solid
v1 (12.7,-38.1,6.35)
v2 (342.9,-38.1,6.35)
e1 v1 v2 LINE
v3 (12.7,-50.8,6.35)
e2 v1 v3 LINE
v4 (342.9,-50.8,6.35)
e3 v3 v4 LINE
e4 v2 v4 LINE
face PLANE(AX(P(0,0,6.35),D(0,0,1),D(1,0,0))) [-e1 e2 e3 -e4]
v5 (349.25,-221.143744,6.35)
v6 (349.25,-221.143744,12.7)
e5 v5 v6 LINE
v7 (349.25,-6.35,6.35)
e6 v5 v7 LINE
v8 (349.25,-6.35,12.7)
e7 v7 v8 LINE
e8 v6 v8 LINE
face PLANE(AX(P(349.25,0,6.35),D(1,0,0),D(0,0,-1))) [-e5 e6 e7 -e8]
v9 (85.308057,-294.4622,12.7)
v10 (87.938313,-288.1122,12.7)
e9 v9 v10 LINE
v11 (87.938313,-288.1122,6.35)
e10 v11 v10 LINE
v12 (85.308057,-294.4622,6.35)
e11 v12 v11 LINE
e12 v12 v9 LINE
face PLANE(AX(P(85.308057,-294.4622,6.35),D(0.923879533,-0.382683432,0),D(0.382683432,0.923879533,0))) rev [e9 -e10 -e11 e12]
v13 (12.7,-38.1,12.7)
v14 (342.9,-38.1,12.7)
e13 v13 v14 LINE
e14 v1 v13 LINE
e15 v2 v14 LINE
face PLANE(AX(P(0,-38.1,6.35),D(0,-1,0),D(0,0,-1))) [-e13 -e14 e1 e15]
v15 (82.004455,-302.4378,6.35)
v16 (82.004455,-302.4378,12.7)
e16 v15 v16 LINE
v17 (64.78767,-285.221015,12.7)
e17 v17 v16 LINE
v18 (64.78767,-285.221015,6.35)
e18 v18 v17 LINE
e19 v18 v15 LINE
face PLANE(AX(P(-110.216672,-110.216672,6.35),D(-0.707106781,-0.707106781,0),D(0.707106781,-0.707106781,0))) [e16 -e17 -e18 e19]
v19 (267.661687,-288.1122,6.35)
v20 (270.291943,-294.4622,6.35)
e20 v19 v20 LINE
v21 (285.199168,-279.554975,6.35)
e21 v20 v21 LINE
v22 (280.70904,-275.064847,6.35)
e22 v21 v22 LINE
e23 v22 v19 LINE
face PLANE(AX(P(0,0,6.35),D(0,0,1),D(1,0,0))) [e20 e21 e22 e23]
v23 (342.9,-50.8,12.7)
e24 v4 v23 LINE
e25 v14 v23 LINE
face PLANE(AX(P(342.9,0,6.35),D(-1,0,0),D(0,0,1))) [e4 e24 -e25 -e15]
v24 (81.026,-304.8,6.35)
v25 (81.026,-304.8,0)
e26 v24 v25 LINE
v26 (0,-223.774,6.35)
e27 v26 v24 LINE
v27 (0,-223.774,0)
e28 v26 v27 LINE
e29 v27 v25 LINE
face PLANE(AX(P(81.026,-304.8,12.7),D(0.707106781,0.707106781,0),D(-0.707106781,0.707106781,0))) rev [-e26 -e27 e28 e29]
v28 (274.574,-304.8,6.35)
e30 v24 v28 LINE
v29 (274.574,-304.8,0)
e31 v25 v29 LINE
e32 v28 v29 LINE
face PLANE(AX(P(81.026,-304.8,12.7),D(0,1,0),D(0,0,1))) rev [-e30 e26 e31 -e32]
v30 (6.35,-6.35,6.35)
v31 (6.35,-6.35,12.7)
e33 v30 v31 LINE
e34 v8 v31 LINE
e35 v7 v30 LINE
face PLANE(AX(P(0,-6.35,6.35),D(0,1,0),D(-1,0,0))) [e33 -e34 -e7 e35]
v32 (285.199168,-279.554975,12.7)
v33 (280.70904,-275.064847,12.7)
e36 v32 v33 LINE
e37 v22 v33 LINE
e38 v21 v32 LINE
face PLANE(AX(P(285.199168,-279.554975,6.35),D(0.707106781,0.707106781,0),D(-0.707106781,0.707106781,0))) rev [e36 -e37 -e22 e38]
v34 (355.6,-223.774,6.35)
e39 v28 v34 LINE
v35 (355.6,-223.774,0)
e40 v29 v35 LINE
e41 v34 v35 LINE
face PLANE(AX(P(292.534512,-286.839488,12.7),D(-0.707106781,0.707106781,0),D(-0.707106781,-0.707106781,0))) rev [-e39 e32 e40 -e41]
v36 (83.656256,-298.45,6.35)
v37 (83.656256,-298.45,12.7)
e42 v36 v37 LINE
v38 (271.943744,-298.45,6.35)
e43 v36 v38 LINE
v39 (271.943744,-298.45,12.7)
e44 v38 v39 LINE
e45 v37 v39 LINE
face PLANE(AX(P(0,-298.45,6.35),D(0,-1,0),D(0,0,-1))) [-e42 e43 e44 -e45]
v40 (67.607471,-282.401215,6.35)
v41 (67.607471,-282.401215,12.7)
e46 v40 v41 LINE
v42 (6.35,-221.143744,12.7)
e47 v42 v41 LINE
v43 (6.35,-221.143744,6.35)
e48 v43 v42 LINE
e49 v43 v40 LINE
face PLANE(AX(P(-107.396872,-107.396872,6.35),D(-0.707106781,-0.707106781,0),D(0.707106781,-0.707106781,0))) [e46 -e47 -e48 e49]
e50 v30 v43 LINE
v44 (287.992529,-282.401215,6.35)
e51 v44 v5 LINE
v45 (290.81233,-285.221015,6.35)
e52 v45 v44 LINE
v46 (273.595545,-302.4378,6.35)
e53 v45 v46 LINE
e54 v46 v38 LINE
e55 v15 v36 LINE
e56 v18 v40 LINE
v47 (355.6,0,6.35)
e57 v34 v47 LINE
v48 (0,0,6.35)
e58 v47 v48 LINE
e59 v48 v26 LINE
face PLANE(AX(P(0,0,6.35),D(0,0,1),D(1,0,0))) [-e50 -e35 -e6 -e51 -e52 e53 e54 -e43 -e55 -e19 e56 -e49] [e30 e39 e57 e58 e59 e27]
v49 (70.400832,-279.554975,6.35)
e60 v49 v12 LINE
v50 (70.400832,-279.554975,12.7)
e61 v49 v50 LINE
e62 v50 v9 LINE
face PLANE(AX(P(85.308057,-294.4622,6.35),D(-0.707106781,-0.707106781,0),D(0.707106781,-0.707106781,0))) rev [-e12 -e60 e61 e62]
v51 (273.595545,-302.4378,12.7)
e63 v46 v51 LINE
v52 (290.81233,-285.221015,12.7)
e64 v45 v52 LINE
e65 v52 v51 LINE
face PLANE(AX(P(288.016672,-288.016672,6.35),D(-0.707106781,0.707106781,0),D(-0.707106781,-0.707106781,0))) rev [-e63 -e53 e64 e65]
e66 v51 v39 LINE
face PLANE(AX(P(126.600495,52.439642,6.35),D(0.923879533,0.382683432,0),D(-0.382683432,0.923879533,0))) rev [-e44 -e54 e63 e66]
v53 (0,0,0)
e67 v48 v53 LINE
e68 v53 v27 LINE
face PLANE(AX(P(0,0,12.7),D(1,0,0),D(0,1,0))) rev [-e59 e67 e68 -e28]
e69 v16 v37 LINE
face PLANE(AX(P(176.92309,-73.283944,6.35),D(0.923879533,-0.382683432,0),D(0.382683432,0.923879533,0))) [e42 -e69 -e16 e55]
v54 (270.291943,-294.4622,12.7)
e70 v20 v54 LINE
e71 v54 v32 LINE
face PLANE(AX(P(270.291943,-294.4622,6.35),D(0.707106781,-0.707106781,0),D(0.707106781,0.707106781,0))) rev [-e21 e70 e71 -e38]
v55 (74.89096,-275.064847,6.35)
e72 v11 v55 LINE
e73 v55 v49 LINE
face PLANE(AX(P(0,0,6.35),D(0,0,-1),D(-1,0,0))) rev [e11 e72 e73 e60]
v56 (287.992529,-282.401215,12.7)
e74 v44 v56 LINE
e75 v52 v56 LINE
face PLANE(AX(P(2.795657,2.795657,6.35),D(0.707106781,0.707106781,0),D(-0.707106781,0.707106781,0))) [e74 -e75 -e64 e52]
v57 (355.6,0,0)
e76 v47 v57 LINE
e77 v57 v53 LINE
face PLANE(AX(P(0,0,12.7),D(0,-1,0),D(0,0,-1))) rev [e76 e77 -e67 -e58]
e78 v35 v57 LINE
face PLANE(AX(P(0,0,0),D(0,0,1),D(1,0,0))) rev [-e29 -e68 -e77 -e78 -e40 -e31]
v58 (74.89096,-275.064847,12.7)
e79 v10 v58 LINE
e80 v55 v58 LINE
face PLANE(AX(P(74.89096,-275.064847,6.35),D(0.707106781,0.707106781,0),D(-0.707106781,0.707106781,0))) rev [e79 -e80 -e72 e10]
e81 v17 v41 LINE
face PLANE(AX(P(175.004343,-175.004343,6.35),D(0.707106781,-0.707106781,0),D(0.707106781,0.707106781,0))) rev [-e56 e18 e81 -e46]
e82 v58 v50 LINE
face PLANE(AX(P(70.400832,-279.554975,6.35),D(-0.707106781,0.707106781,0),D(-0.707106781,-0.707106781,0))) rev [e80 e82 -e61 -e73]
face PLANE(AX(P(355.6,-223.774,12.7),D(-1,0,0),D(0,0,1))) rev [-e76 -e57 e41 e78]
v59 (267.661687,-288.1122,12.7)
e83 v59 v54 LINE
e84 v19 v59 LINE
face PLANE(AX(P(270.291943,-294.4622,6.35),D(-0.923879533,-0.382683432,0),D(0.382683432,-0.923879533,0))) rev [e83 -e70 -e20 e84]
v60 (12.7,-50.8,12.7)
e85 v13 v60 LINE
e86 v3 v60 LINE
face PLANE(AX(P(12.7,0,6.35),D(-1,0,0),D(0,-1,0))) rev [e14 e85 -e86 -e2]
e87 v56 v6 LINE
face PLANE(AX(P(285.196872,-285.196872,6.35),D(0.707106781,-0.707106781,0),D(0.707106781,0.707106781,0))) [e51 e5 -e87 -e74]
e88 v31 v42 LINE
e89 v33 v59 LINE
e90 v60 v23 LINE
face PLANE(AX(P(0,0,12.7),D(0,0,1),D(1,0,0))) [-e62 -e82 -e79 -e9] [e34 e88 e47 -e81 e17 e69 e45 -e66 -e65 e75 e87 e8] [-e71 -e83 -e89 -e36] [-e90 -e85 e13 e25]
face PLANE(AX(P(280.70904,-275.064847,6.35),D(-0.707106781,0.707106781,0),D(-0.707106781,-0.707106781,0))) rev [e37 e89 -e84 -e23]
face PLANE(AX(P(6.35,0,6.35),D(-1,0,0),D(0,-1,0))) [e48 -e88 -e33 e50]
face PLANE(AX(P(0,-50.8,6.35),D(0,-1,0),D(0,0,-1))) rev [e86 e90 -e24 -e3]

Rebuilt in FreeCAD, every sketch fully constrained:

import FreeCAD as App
import Part
import Sketcher
Q = App.Units.Quantity

doc = App.newDocument("Part")
body = doc.addObject("PartDesign::Body", "Body")

# Sketch on XY plane
sketch1 = doc.addObject("Sketcher::SketchObject", "Sketch")
body.addObject(sketch1)
sketch1.AttachmentSupport = (doc.XY_Plane, [""])
sketch1.MapMode = "FlatFace"
sketch1.addGeometry([
    Part.LineSegment(App.Vector(355.6, 0, 0), App.Vector(0, 0, 0)),  # 0
    Part.LineSegment(App.Vector(0, 0, 0), App.Vector(0, -223.774, 0)),  # 1
    Part.LineSegment(App.Vector(0, -223.774, 0), App.Vector(81.026, -304.8, 0)),  # 2
    Part.LineSegment(App.Vector(81.026, -304.8, 0), App.Vector(274.574, -304.8, 0)),  # 3
    Part.LineSegment(App.Vector(274.574, -304.8, 0), App.Vector(355.6, -223.774, 0)),  # 4
    Part.LineSegment(App.Vector(355.6, -223.774, 0), App.Vector(355.6, 0, 0)),  # 5
], False)
sketch1.addConstraint([
    Sketcher.Constraint("Coincident", 0, 2, 1, 1),
    Sketcher.Constraint("Coincident", 1, 2, 2, 1),
    Sketcher.Constraint("Coincident", 2, 2, 3, 1),
    Sketcher.Constraint("Coincident", 3, 2, 4, 1),
    Sketcher.Constraint("Coincident", 4, 2, 5, 1),
    Sketcher.Constraint("Coincident", 5, 2, 0, 1),
    Sketcher.Constraint("Horizontal", 0),
    Sketcher.Constraint("Vertical", 1),
    Sketcher.Constraint("Horizontal", 3),
    Sketcher.Constraint("Vertical", 5),
    Sketcher.Constraint("Coincident", 0, 2, -1, 1),
    Sketcher.Constraint("Perpendicular", 2, 4),
    Sketcher.Constraint("Horizontal", 1, 2, 4, 2),
    Sketcher.Constraint("Equal", 2, 4),
    Sketcher.Constraint("DistanceX", 0, 2, 0, 1, Q("14 in")),
    Sketcher.Constraint("DistanceY", 2, 2, -1, 1, Q("12 in")),
    Sketcher.Constraint("DistanceX", 3, 1, 3, 2, Q("7.62 in")),
])
pad1 = doc.addObject("PartDesign::Pad", "Pad")
body.addObject(pad1)
pad1.Profile = sketch1
pad1.Length = Q("0.5 in")

# Sketch on XY plane
sketch2 = doc.addObject("Sketcher::SketchObject", "Sketch001")
body.addObject(sketch2)
sketch2.AttachmentSupport = (doc.XY_Plane, [""])
sketch2.MapMode = "FlatFace"
sketch2.AttachmentOffset = App.Placement(App.Vector(0, 0, 0.5 * 25.4), App.Rotation())
sketch2.addGeometry([
    Part.LineSegment(App.Vector(0, 0, 0), App.Vector(0, -223.774, 0)),  # 0
    Part.LineSegment(App.Vector(0, -223.774, 0), App.Vector(81.026, -304.8, 0)),  # 1
    Part.LineSegment(App.Vector(81.026, -304.8, 0), App.Vector(274.574, -304.8, 0)),  # 2
    Part.LineSegment(App.Vector(274.574, -304.8, 0), App.Vector(355.6, -223.774, 0)),  # 3
    Part.LineSegment(App.Vector(355.6, -223.774, 0), App.Vector(355.6, 0, 0)),  # 4
    Part.LineSegment(App.Vector(355.6, 0, 0), App.Vector(0, 0, 0)),  # 5
    Part.LineSegment(App.Vector(67.607471, -282.401215, 0), App.Vector(6.35, -221.143744, 0)),  # 6
    Part.LineSegment(App.Vector(6.35, -221.143744, 0), App.Vector(6.35, -6.35, 0)),  # 7
    Part.LineSegment(App.Vector(6.35, -6.35, 0), App.Vector(349.25, -6.35, 0)),  # 8
    Part.LineSegment(App.Vector(349.25, -6.35, 0), App.Vector(349.25, -221.143744, 0)),  # 9
    Part.LineSegment(App.Vector(349.25, -221.143744, 0), App.Vector(287.992529, -282.401215, 0)),  # 10
    Part.LineSegment(App.Vector(287.992529, -282.401215, 0), App.Vector(290.81233, -285.221015, 0)),  # 11
    Part.LineSegment(App.Vector(290.81233, -285.221015, 0), App.Vector(273.595545, -302.4378, 0)),  # 12
    Part.LineSegment(App.Vector(273.595545, -302.4378, 0), App.Vector(271.943744, -298.45, 0)),  # 13
    Part.LineSegment(App.Vector(271.943744, -298.45, 0), App.Vector(83.656256, -298.45, 0)),  # 14
    Part.LineSegment(App.Vector(83.656256, -298.45, 0), App.Vector(82.004455, -302.4378, 0)),  # 15
    Part.LineSegment(App.Vector(82.004455, -302.4378, 0), App.Vector(64.78767, -285.221015, 0)),  # 16
    Part.LineSegment(App.Vector(64.78767, -285.221015, 0), App.Vector(67.607471, -282.401215, 0)),  # 17
    Part.LineSegment(App.Vector(12.7, -38.1, 0), App.Vector(12.7, -50.8, 0)),  # 18
    Part.LineSegment(App.Vector(12.7, -50.8, 0), App.Vector(342.9, -50.8, 0)),  # 19
    Part.LineSegment(App.Vector(342.9, -50.8, 0), App.Vector(342.9, -38.1, 0)),  # 20
    Part.LineSegment(App.Vector(342.9, -38.1, 0), App.Vector(12.7, -38.1, 0)),  # 21
], False)
sketch2.addConstraint([
    Sketcher.Constraint("Coincident", 0, 2, 1, 1),
    Sketcher.Constraint("Coincident", 1, 2, 2, 1),
    Sketcher.Constraint("Coincident", 2, 2, 3, 1),
    Sketcher.Constraint("Coincident", 3, 2, 4, 1),
    Sketcher.Constraint("Coincident", 4, 2, 5, 1),
    Sketcher.Constraint("Coincident", 5, 2, 0, 1),
    Sketcher.Constraint("Coincident", 6, 2, 7, 1),
    Sketcher.Constraint("Coincident", 7, 2, 8, 1),
    Sketcher.Constraint("Coincident", 8, 2, 9, 1),
    Sketcher.Constraint("Coincident", 9, 2, 10, 1),
    Sketcher.Constraint("Coincident", 10, 2, 11, 1),
    Sketcher.Constraint("Coincident", 11, 2, 12, 1),
    Sketcher.Constraint("Coincident", 12, 2, 13, 1),
    Sketcher.Constraint("Coincident", 13, 2, 14, 1),
    Sketcher.Constraint("Coincident", 14, 2, 15, 1),
    Sketcher.Constraint("Coincident", 15, 2, 16, 1),
    Sketcher.Constraint("Coincident", 16, 2, 17, 1),
    Sketcher.Constraint("Coincident", 17, 2, 6, 1),
    Sketcher.Constraint("Coincident", 18, 2, 19, 1),
    Sketcher.Constraint("Coincident", 19, 2, 20, 1),
    Sketcher.Constraint("Coincident", 20, 2, 21, 1),
    Sketcher.Constraint("Coincident", 21, 2, 18, 1),
    Sketcher.Constraint("Vertical", 0),
    Sketcher.Constraint("Horizontal", 2),
    Sketcher.Constraint("Vertical", 4),
    Sketcher.Constraint("Horizontal", 5),
    Sketcher.Constraint("Vertical", 7),
    Sketcher.Constraint("Horizontal", 8),
    Sketcher.Constraint("Vertical", 9),
    Sketcher.Constraint("Horizontal", 14),
    Sketcher.Constraint("Vertical", 18),
    Sketcher.Constraint("Horizontal", 19),
    Sketcher.Constraint("Vertical", 20),
    Sketcher.Constraint("Horizontal", 21),
    Sketcher.Constraint("Coincident", 5, 2, -1, 1),
    Sketcher.Constraint("Perpendicular", 1, 3),
    Sketcher.Constraint("Perpendicular", 3, 6),
    Sketcher.Constraint("Perpendicular", 6, 10),
    Sketcher.Constraint("Perpendicular", 10, 11),
    Sketcher.Constraint("Perpendicular", 11, 12),
    Sketcher.Constraint("Perpendicular", 12, 16),
    Sketcher.Constraint("Perpendicular", 16, 17),
    Sketcher.Constraint("Horizontal", 0, 2, 3, 2),
    Sketcher.Constraint("Horizontal", 6, 2, 9, 2),
    Sketcher.Constraint("Horizontal", 12, 2, 15, 2),
    Sketcher.Constraint("Horizontal", 11, 2, 16, 2),
    Sketcher.Constraint("Horizontal", 10, 2, 17, 2),
    Sketcher.Constraint("Equal", 1, 3),
    Sketcher.Constraint("Equal", 13, 15),
    Sketcher.Constraint("DistanceX", 5, 2, 5, 1, Q("14 in")),
    Sketcher.Constraint("DistanceX", 19, 1, 19, 2, Q("13 in")),
    Sketcher.Constraint("DistanceX", 8, 1, 8, 2, Q("13.5 in")),
    Sketcher.Constraint("DistanceY", 18, 2, 18, 1, Q("0.5 in")),
    Sketcher.Constraint("DistanceY", 1, 2, -1, 1, Q("12 in")),
    Sketcher.Constraint("DistanceY", 18, 2, -1, 1, Q("2 in")),
    Sketcher.Constraint("DistanceX", 2, 1, 2, 2, Q("7.62 in")),
    Sketcher.Constraint("DistanceX", -1, 1, 18, 2, Q("0.5 in")),
    Sketcher.Constraint("Angle", 13, Q("112.5 deg")),
    Sketcher.Constraint("DistanceX", -1, 1, 6, 2, Q("0.25 in")),
    Sketcher.Constraint("DistanceY", 7, 2, -1, 1, Q("0.25 in")),
    Sketcher.Constraint("DistanceY", 13, 2, -1, 1, Q("11.75 in")),
    Sketcher.Constraint("Distance", 11, Q("0.157 in")),
    Sketcher.Constraint("DistanceY", 12, 2, -1, 1, Q("11.907 in")),
    Sketcher.Constraint("Distance", 12, 24.348211),
    Sketcher.Constraint("DistanceX", 14, 2, 14, 1, 188.287488),
])
pocket1 = doc.addObject("PartDesign::Pocket", "Pocket")
body.addObject(pocket1)
pocket1.Profile = sketch2
pocket1.Length = Q("0.25 in")

# Sketch on XY plane
sketch3 = doc.addObject("Sketcher::SketchObject", "Sketch002")
body.addObject(sketch3)
sketch3.AttachmentSupport = (doc.XY_Plane, [""])
sketch3.MapMode = "FlatFace"
sketch3.AttachmentOffset = App.Placement(App.Vector(0, 0, 0.5 * 25.4), App.Rotation())
sketch3.addGeometry([
    Part.LineSegment(App.Vector(70.400832, -279.554975, 0), App.Vector(85.308057, -294.4622, 0)),  # 0
    Part.LineSegment(App.Vector(85.308057, -294.4622, 0), App.Vector(87.938313, -288.1122, 0)),  # 1
    Part.LineSegment(App.Vector(87.938313, -288.1122, 0), App.Vector(74.89096, -275.064847, 0)),  # 2
    Part.LineSegment(App.Vector(74.89096, -275.064847, 0), App.Vector(70.400832, -279.554975, 0)),  # 3
    Part.LineSegment(App.Vector(285.199168, -279.554975, 0), App.Vector(280.70904, -275.064847, 0)),  # 4
    Part.LineSegment(App.Vector(280.70904, -275.064847, 0), App.Vector(267.661687, -288.1122, 0)),  # 5
    Part.LineSegment(App.Vector(267.661687, -288.1122, 0), App.Vector(270.291943, -294.4622, 0)),  # 6
    Part.LineSegment(App.Vector(270.291943, -294.4622, 0), App.Vector(285.199168, -279.554975, 0)),  # 7
], False)
sketch3.addConstraint([
    Sketcher.Constraint("Coincident", 0, 2, 1, 1),
    Sketcher.Constraint("Coincident", 1, 2, 2, 1),
    Sketcher.Constraint("Coincident", 2, 2, 3, 1),
    Sketcher.Constraint("Coincident", 3, 2, 0, 1),
    Sketcher.Constraint("Coincident", 4, 2, 5, 1),
    Sketcher.Constraint("Coincident", 5, 2, 6, 1),
    Sketcher.Constraint("Coincident", 6, 2, 7, 1),
    Sketcher.Constraint("Coincident", 7, 2, 4, 1),
    Sketcher.Constraint("Parallel", 0, 2),
    Sketcher.Constraint("Perpendicular", 2, 3),
    Sketcher.Constraint("Perpendicular", 3, 4),
    Sketcher.Constraint("Perpendicular", 4, 5),
    Sketcher.Constraint("Parallel", 5, 7),
    Sketcher.Constraint("Horizontal", 2, 2, 4, 2),
    Sketcher.Constraint("Horizontal", 1, 2, 5, 2),
    Sketcher.Constraint("Horizontal", 0, 2, 6, 2),
    Sketcher.Constraint("Horizontal", 3, 2, 7, 2),
    Sketcher.Constraint("Equal", 3, 4),
    Sketcher.Constraint("Angle", 1, Q("67.5 deg")),
    Sketcher.Constraint("Distance", 0, Q("0.83 in")),
    Sketcher.Constraint("Distance", 3, Q("0.25 in")),
    Sketcher.Constraint("DistanceY", 0, 2, -1, 1, Q("11.593 in")),
    Sketcher.Constraint("DistanceX", -1, 1, 2, 2, 74.89096),
    Sketcher.Constraint("DistanceX", -1, 1, 4, 2, 280.70904),
])
pocket2 = doc.addObject("PartDesign::Pocket", "Pocket001")
body.addObject(pocket2)
pocket2.Profile = sketch3
pocket2.Length = Q("0.25 in")

doc.recompute()
